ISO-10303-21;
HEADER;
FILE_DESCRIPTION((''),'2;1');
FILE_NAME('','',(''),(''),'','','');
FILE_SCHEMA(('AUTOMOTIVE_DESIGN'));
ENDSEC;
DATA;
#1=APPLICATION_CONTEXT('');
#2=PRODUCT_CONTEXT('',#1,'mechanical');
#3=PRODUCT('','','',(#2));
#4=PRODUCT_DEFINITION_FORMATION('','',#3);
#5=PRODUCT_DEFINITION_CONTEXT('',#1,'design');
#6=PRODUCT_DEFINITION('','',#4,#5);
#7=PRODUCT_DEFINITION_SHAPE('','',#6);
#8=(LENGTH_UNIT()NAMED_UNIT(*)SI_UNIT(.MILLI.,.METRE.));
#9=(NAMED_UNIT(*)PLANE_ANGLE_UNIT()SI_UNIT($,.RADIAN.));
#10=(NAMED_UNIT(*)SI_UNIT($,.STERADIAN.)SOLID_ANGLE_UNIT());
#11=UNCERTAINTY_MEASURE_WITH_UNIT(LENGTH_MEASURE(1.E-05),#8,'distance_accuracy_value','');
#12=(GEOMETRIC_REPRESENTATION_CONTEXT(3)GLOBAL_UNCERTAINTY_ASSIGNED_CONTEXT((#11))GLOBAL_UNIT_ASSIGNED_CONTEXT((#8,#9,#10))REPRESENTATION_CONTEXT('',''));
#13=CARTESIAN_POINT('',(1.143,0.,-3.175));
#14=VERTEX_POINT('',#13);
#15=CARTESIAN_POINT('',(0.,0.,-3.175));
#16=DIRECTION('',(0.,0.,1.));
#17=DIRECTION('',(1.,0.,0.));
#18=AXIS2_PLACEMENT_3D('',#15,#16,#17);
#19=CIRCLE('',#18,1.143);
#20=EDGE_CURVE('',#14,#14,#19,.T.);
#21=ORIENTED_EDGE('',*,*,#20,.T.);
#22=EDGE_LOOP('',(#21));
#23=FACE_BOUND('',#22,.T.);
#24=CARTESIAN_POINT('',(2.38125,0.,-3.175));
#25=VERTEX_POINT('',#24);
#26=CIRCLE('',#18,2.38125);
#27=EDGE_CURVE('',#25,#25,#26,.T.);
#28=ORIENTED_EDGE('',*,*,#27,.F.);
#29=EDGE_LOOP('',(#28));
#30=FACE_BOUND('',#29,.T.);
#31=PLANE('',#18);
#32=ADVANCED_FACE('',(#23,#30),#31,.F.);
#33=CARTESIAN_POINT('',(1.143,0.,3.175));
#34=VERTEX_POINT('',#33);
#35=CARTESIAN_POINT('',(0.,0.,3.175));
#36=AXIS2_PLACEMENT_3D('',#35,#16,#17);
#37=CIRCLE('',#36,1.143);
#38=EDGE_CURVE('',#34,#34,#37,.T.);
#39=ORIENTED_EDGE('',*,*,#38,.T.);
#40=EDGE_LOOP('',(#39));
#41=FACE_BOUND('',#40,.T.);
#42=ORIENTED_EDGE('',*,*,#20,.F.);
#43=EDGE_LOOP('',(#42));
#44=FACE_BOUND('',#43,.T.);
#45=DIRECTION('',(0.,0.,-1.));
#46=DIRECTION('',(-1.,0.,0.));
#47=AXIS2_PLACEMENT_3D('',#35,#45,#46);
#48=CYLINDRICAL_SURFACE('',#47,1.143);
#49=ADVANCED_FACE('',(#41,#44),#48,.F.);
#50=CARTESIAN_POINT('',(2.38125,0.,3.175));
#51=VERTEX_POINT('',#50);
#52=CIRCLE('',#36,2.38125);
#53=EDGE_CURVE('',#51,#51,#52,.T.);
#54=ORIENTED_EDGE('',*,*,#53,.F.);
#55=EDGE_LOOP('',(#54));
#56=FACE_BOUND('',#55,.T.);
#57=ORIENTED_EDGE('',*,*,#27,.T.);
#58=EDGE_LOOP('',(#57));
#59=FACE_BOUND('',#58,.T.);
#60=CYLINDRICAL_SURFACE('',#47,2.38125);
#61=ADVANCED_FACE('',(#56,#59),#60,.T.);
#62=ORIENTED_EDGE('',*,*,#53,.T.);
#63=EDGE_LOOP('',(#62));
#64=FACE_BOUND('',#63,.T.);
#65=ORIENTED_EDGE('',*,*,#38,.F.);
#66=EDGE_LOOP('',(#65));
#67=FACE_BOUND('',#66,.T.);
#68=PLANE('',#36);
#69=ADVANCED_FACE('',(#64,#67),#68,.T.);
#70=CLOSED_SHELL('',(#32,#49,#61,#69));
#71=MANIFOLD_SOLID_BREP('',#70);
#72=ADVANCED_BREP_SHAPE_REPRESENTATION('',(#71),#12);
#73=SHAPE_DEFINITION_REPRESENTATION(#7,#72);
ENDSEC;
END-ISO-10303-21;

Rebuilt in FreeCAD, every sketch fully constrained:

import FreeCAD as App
import Part
import Sketcher
Q = App.Units.Quantity

doc = App.newDocument("Part")
body = doc.addObject("PartDesign::Body", "Body")

sketch1 = body.newObject("Sketcher::SketchObject", "Sketch")
sketch1.AttachmentSupport = (doc.getObject("XY_Plane"), [""])
sketch1.MapMode = "FlatFace"
sketch1.addGeometry([
    Part.Circle(App.Vector(0, 0, 0), App.Vector(0, 0, 1), 2.38125),
    Part.Circle(App.Vector(0, 0, 0), App.Vector(0, 0, 1), 1.143),
], False)
sketch1.addConstraint([
    Sketcher.Constraint("Coincident", 0, 3, -1, 1),
    Sketcher.Constraint("Coincident", 1, 3, -1, 1),
    Sketcher.Constraint("Diameter", 1, Q("0.09 in")),
    Sketcher.Constraint("Diameter", 0, Q("0.1875 in")),
])
pad1 = body.newObject("PartDesign::Pad", "Pad")
pad1.Profile = sketch1
pad1.Length = Q("0.25 in")
pad1.Midplane = True

doc.recompute()
